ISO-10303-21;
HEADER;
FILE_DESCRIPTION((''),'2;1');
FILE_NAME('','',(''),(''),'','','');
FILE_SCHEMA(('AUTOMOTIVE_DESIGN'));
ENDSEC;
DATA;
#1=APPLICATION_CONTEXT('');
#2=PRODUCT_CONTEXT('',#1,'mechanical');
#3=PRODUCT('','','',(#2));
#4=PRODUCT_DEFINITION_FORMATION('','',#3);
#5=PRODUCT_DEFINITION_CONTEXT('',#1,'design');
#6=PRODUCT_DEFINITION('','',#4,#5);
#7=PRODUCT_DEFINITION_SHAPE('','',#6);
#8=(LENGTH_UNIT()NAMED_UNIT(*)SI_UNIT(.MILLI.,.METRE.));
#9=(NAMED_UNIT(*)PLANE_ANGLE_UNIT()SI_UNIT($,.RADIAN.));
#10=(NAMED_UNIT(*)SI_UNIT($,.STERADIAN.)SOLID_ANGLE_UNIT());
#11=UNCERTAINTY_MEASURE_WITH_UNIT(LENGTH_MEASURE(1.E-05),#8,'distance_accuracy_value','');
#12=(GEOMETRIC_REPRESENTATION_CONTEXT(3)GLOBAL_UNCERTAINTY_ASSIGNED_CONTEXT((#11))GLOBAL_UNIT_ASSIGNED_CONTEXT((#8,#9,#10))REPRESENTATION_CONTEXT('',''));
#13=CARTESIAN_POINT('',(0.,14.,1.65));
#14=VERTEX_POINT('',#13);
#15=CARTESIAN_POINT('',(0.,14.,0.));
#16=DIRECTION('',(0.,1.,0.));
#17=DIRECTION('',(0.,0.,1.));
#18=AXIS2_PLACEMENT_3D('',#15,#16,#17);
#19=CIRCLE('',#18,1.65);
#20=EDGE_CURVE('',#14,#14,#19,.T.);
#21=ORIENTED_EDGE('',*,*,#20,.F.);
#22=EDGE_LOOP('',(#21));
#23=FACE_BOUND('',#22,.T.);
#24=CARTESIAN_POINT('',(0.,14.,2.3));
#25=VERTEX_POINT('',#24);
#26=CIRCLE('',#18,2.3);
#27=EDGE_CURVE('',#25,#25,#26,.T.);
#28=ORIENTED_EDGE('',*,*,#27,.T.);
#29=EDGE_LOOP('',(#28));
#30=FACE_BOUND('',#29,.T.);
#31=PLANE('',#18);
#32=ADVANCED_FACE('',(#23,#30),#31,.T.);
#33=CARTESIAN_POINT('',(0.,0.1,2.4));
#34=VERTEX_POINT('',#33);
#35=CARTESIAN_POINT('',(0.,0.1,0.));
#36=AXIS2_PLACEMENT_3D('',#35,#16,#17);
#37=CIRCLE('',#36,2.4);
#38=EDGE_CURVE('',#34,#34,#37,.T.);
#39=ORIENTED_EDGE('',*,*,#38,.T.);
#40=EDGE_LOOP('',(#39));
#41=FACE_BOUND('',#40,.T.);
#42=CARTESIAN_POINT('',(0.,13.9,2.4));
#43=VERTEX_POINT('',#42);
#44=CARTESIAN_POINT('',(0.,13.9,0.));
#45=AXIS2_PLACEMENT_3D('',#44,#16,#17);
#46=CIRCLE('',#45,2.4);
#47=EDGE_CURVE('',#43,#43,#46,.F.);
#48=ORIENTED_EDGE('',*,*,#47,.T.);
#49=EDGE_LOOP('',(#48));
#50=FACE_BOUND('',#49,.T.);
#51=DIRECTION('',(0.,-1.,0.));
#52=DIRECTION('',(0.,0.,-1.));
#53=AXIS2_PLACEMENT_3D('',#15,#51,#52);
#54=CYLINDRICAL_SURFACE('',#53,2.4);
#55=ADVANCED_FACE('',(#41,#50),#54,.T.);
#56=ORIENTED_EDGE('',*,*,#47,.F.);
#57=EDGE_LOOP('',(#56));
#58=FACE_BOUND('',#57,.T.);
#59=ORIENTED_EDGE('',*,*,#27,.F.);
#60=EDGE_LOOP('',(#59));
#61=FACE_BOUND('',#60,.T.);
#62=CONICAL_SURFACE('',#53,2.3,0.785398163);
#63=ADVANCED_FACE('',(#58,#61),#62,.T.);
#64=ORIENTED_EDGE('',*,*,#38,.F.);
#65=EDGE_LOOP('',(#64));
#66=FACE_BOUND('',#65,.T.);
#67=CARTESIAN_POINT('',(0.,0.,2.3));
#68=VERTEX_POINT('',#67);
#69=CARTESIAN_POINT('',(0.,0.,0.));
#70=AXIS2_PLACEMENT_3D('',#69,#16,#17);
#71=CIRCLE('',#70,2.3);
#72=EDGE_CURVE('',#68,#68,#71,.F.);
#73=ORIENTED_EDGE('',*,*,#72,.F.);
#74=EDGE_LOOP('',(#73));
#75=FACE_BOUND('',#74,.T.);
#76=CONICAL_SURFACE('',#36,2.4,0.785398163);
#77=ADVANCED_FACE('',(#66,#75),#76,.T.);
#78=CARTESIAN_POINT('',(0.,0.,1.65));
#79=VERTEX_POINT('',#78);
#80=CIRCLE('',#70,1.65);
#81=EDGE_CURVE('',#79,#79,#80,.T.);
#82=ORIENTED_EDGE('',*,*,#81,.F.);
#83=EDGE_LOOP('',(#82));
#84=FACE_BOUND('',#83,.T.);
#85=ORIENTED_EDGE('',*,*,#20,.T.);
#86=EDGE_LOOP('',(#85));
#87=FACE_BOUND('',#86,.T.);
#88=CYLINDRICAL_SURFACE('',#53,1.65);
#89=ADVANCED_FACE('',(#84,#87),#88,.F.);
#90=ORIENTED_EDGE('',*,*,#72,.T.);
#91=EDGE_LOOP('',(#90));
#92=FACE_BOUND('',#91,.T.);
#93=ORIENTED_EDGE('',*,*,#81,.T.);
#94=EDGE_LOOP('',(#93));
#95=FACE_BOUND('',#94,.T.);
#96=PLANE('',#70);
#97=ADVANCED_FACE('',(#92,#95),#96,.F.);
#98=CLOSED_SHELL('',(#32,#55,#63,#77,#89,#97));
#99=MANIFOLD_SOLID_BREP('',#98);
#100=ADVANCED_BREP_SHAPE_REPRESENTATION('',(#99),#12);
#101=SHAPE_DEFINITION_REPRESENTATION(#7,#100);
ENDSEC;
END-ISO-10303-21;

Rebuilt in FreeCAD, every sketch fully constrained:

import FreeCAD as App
import Part
import Sketcher
Q = App.Units.Quantity


def edges_at(feature, points):
    """Names of the edges that pass closest to the given points."""
    edges = feature.Shape.Edges
    near = lambda p: min(range(len(edges)), key=lambda i: edges[i].distToShape(Part.Vertex(*p))[0])
    return sorted({f"Edge{near(p) + 1}" for p in points})

doc = App.newDocument("Part")
params = doc.addObject("Spreadsheet::Sheet", "Params")
for row, (alias, value) in enumerate([
    ("sketch1_diameter", "4.8 mm"),
    ("sketch1_diameter2", "3.3 mm"),
    ("pad1_length", "14 mm"),
    ("chamfer_size", "0.1 mm"),
], start=1):
    params.set(f"A{row}", alias)
    params.set(f"B{row}", "=" + value)
    params.setAlias(f"B{row}", alias)

body = doc.addObject("PartDesign::Body", "Body")

# Sketch on XZ plane
sketch1 = body.newObject("Sketcher::SketchObject", "Sketch")
sketch1.AttachmentSupport = (doc.getObject("XZ_Plane"), [""])
sketch1.MapMode = "FlatFace"
sketch1.addGeometry([
    Part.Circle(App.Vector(0, 0, 0), App.Vector(0, 0, 1), 2.4),
    Part.Circle(App.Vector(0, 0, 0), App.Vector(0, 0, 1), 1.65),
], False)
sketch1.addConstraint([
    Sketcher.Constraint("Coincident", 0, 3, -1, 1),
    Sketcher.Constraint("Coincident", 1, 3, -1, 1),
    Sketcher.Constraint("Diameter", 0, Q("4.8 mm")),
    Sketcher.Constraint("Diameter", 1, Q("3.3 mm")),
])
sketch1.setExpression("Constraints[2]", "Params.sketch1_diameter")
sketch1.setExpression("Constraints[3]", "Params.sketch1_diameter2")
pad1 = body.newObject("PartDesign::Pad", "Pad")
pad1.Profile = sketch1
pad1.setExpression("Length", "Params.pad1_length")
pad1.Reversed = True
doc.recompute()

chamfer = body.newObject("PartDesign::Chamfer", "Chamfer")
chamfer.Base = (pad1, edges_at(pad1, [(0, 0, -2.4), (0, 14, -2.4)]))
chamfer.setExpression("Size", "Params.chamfer_size")

doc.recompute()
